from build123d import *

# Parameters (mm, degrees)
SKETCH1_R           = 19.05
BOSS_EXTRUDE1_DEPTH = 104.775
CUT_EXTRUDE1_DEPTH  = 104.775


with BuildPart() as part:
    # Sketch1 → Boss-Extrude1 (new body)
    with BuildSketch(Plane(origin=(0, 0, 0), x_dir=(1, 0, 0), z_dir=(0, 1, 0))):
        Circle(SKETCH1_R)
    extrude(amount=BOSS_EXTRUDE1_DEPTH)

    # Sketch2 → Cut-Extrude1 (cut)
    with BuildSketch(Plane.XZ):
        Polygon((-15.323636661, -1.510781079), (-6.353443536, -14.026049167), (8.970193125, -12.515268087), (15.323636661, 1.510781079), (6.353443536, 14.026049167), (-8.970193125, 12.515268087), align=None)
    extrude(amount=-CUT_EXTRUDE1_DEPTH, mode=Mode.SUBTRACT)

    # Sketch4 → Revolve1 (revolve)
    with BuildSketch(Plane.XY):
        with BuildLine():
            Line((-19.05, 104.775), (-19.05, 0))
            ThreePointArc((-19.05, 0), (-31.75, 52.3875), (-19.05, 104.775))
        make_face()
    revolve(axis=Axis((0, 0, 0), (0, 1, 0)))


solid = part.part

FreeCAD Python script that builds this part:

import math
import FreeCAD as App
import Part
import Sketcher

V = App.Vector
Q = App.Units.Quantity

doc = App.newDocument("Part")
body = doc.addObject("PartDesign::Body", "Body")

sketch1 = body.newObject("Sketcher::SketchObject", "Sketch")
sketch1.AttachmentSupport = (doc.getObject("XZ_Plane"), [""])
sketch1.MapMode = "FlatFace"
sketch1.addGeometry(Part.Circle(V(0, 0, 0), V(0, 0, 1), 19.05), False)
sketch1.addConstraint([
    Sketcher.Constraint("Coincident", 0, 3, -1, 1),
    Sketcher.Constraint("Diameter", 0, Q("1.5 in")),
])
pad1 = body.newObject("PartDesign::Pad", "Pad")
pad1.Profile = sketch1
pad1.Length = Q("4.125 in")
pad1.Reversed = True

sketch2 = body.newObject("Sketcher::SketchObject", "Sketch001")
sketch2.AttachmentSupport = (doc.getObject("XZ_Plane"), [""])
sketch2.MapMode = "FlatFace"
sketch2.addGeometry([
    Part.LineSegment(V(-15.323637, -1.510781, 0), V(-6.353444, -14.026049, 0)),
    Part.LineSegment(V(-6.353444, -14.026049, 0), V(8.970193, -12.515268, 0)),
    Part.LineSegment(V(8.970193, -12.515268, 0), V(15.323637, 1.510781, 0)),
    Part.LineSegment(V(15.323637, 1.510781, 0), V(6.353444, 14.026049, 0)),
    Part.LineSegment(V(6.353444, 14.026049, 0), V(-8.970193, 12.515268, 0)),
    Part.LineSegment(V(-8.970193, 12.515268, 0), V(-15.323637, -1.510781, 0)),
], False)
sketch2.addConstraint([
    Sketcher.Constraint("Coincident", 0, 2, 1, 1),
    Sketcher.Constraint("Coincident", 1, 2, 2, 1),
    Sketcher.Constraint("Coincident", 2, 2, 3, 1),
    Sketcher.Constraint("Coincident", 3, 2, 4, 1),
    Sketcher.Constraint("Coincident", 4, 2, 5, 1),
    Sketcher.Constraint("Coincident", 5, 2, 0, 1),
    Sketcher.Constraint("Symmetric", 0, 2, 3, 2, -1, 1),
    Sketcher.Constraint("Symmetric", 1, 2, 4, 2, -1, 1),
    Sketcher.Constraint("Symmetric", 2, 2, 5, 2, -1, 1),
    Sketcher.Constraint("Equal", 0, 1),
    Sketcher.Constraint("Equal", 1, 2),
    Sketcher.Constraint("DistanceY", 0, 2, 3, 2, 28.052098),
    Sketcher.Constraint("Distance", 0, 15.397932),
    Sketcher.Constraint("DistanceY", 1, 2, -1, 1, 12.515268),
    Sketcher.Constraint("DistanceY", -1, 1, 2, 2, 1.510781),
])
pocket1 = body.newObject("PartDesign::Pocket", "Pocket")
pocket1.Profile = sketch2
pocket1.Length = Q("4.125 in")

sketch3 = body.newObject("Sketcher::SketchObject", "Sketch002")
sketch3.AttachmentSupport = (doc.getObject("XY_Plane"), [""])
sketch3.MapMode = "FlatFace"
sketch3.addGeometry([
    Part.LineSegment(V(-19.05, 0, 0), V(-19.05, 104.775, 0)),
    Part.ArcOfCircle(Part.Circle(V(82.649219, 52.3875, 0), V(0, 0, 1), 114.399219), math.radians(152.74601), math.radians(207.25399)),
], False)
sketch3.addConstraint([
    Sketcher.Constraint("Coincident", 0, 1, 1, 2),
    Sketcher.Constraint("Coincident", 1, 1, 0, 2),
    Sketcher.Constraint("Vertical", 0),
    Sketcher.Constraint("PointOnObject", 0, 1, -1),
    Sketcher.Constraint("DistanceY", 0, 1, 0, 2, Q("4.125 in")),
    Sketcher.Constraint("DistanceX", 0, 1, -1, 1, Q("0.75 in")),
    Sketcher.Constraint("Radius", 1, 114.399219),
])
revolution = body.newObject("PartDesign::Revolution", "Revolution")
revolution.Profile = sketch3
revolution.ReferenceAxis = (sketch3, ["V_Axis"])
revolution.Angle = 360

doc.recompute()
